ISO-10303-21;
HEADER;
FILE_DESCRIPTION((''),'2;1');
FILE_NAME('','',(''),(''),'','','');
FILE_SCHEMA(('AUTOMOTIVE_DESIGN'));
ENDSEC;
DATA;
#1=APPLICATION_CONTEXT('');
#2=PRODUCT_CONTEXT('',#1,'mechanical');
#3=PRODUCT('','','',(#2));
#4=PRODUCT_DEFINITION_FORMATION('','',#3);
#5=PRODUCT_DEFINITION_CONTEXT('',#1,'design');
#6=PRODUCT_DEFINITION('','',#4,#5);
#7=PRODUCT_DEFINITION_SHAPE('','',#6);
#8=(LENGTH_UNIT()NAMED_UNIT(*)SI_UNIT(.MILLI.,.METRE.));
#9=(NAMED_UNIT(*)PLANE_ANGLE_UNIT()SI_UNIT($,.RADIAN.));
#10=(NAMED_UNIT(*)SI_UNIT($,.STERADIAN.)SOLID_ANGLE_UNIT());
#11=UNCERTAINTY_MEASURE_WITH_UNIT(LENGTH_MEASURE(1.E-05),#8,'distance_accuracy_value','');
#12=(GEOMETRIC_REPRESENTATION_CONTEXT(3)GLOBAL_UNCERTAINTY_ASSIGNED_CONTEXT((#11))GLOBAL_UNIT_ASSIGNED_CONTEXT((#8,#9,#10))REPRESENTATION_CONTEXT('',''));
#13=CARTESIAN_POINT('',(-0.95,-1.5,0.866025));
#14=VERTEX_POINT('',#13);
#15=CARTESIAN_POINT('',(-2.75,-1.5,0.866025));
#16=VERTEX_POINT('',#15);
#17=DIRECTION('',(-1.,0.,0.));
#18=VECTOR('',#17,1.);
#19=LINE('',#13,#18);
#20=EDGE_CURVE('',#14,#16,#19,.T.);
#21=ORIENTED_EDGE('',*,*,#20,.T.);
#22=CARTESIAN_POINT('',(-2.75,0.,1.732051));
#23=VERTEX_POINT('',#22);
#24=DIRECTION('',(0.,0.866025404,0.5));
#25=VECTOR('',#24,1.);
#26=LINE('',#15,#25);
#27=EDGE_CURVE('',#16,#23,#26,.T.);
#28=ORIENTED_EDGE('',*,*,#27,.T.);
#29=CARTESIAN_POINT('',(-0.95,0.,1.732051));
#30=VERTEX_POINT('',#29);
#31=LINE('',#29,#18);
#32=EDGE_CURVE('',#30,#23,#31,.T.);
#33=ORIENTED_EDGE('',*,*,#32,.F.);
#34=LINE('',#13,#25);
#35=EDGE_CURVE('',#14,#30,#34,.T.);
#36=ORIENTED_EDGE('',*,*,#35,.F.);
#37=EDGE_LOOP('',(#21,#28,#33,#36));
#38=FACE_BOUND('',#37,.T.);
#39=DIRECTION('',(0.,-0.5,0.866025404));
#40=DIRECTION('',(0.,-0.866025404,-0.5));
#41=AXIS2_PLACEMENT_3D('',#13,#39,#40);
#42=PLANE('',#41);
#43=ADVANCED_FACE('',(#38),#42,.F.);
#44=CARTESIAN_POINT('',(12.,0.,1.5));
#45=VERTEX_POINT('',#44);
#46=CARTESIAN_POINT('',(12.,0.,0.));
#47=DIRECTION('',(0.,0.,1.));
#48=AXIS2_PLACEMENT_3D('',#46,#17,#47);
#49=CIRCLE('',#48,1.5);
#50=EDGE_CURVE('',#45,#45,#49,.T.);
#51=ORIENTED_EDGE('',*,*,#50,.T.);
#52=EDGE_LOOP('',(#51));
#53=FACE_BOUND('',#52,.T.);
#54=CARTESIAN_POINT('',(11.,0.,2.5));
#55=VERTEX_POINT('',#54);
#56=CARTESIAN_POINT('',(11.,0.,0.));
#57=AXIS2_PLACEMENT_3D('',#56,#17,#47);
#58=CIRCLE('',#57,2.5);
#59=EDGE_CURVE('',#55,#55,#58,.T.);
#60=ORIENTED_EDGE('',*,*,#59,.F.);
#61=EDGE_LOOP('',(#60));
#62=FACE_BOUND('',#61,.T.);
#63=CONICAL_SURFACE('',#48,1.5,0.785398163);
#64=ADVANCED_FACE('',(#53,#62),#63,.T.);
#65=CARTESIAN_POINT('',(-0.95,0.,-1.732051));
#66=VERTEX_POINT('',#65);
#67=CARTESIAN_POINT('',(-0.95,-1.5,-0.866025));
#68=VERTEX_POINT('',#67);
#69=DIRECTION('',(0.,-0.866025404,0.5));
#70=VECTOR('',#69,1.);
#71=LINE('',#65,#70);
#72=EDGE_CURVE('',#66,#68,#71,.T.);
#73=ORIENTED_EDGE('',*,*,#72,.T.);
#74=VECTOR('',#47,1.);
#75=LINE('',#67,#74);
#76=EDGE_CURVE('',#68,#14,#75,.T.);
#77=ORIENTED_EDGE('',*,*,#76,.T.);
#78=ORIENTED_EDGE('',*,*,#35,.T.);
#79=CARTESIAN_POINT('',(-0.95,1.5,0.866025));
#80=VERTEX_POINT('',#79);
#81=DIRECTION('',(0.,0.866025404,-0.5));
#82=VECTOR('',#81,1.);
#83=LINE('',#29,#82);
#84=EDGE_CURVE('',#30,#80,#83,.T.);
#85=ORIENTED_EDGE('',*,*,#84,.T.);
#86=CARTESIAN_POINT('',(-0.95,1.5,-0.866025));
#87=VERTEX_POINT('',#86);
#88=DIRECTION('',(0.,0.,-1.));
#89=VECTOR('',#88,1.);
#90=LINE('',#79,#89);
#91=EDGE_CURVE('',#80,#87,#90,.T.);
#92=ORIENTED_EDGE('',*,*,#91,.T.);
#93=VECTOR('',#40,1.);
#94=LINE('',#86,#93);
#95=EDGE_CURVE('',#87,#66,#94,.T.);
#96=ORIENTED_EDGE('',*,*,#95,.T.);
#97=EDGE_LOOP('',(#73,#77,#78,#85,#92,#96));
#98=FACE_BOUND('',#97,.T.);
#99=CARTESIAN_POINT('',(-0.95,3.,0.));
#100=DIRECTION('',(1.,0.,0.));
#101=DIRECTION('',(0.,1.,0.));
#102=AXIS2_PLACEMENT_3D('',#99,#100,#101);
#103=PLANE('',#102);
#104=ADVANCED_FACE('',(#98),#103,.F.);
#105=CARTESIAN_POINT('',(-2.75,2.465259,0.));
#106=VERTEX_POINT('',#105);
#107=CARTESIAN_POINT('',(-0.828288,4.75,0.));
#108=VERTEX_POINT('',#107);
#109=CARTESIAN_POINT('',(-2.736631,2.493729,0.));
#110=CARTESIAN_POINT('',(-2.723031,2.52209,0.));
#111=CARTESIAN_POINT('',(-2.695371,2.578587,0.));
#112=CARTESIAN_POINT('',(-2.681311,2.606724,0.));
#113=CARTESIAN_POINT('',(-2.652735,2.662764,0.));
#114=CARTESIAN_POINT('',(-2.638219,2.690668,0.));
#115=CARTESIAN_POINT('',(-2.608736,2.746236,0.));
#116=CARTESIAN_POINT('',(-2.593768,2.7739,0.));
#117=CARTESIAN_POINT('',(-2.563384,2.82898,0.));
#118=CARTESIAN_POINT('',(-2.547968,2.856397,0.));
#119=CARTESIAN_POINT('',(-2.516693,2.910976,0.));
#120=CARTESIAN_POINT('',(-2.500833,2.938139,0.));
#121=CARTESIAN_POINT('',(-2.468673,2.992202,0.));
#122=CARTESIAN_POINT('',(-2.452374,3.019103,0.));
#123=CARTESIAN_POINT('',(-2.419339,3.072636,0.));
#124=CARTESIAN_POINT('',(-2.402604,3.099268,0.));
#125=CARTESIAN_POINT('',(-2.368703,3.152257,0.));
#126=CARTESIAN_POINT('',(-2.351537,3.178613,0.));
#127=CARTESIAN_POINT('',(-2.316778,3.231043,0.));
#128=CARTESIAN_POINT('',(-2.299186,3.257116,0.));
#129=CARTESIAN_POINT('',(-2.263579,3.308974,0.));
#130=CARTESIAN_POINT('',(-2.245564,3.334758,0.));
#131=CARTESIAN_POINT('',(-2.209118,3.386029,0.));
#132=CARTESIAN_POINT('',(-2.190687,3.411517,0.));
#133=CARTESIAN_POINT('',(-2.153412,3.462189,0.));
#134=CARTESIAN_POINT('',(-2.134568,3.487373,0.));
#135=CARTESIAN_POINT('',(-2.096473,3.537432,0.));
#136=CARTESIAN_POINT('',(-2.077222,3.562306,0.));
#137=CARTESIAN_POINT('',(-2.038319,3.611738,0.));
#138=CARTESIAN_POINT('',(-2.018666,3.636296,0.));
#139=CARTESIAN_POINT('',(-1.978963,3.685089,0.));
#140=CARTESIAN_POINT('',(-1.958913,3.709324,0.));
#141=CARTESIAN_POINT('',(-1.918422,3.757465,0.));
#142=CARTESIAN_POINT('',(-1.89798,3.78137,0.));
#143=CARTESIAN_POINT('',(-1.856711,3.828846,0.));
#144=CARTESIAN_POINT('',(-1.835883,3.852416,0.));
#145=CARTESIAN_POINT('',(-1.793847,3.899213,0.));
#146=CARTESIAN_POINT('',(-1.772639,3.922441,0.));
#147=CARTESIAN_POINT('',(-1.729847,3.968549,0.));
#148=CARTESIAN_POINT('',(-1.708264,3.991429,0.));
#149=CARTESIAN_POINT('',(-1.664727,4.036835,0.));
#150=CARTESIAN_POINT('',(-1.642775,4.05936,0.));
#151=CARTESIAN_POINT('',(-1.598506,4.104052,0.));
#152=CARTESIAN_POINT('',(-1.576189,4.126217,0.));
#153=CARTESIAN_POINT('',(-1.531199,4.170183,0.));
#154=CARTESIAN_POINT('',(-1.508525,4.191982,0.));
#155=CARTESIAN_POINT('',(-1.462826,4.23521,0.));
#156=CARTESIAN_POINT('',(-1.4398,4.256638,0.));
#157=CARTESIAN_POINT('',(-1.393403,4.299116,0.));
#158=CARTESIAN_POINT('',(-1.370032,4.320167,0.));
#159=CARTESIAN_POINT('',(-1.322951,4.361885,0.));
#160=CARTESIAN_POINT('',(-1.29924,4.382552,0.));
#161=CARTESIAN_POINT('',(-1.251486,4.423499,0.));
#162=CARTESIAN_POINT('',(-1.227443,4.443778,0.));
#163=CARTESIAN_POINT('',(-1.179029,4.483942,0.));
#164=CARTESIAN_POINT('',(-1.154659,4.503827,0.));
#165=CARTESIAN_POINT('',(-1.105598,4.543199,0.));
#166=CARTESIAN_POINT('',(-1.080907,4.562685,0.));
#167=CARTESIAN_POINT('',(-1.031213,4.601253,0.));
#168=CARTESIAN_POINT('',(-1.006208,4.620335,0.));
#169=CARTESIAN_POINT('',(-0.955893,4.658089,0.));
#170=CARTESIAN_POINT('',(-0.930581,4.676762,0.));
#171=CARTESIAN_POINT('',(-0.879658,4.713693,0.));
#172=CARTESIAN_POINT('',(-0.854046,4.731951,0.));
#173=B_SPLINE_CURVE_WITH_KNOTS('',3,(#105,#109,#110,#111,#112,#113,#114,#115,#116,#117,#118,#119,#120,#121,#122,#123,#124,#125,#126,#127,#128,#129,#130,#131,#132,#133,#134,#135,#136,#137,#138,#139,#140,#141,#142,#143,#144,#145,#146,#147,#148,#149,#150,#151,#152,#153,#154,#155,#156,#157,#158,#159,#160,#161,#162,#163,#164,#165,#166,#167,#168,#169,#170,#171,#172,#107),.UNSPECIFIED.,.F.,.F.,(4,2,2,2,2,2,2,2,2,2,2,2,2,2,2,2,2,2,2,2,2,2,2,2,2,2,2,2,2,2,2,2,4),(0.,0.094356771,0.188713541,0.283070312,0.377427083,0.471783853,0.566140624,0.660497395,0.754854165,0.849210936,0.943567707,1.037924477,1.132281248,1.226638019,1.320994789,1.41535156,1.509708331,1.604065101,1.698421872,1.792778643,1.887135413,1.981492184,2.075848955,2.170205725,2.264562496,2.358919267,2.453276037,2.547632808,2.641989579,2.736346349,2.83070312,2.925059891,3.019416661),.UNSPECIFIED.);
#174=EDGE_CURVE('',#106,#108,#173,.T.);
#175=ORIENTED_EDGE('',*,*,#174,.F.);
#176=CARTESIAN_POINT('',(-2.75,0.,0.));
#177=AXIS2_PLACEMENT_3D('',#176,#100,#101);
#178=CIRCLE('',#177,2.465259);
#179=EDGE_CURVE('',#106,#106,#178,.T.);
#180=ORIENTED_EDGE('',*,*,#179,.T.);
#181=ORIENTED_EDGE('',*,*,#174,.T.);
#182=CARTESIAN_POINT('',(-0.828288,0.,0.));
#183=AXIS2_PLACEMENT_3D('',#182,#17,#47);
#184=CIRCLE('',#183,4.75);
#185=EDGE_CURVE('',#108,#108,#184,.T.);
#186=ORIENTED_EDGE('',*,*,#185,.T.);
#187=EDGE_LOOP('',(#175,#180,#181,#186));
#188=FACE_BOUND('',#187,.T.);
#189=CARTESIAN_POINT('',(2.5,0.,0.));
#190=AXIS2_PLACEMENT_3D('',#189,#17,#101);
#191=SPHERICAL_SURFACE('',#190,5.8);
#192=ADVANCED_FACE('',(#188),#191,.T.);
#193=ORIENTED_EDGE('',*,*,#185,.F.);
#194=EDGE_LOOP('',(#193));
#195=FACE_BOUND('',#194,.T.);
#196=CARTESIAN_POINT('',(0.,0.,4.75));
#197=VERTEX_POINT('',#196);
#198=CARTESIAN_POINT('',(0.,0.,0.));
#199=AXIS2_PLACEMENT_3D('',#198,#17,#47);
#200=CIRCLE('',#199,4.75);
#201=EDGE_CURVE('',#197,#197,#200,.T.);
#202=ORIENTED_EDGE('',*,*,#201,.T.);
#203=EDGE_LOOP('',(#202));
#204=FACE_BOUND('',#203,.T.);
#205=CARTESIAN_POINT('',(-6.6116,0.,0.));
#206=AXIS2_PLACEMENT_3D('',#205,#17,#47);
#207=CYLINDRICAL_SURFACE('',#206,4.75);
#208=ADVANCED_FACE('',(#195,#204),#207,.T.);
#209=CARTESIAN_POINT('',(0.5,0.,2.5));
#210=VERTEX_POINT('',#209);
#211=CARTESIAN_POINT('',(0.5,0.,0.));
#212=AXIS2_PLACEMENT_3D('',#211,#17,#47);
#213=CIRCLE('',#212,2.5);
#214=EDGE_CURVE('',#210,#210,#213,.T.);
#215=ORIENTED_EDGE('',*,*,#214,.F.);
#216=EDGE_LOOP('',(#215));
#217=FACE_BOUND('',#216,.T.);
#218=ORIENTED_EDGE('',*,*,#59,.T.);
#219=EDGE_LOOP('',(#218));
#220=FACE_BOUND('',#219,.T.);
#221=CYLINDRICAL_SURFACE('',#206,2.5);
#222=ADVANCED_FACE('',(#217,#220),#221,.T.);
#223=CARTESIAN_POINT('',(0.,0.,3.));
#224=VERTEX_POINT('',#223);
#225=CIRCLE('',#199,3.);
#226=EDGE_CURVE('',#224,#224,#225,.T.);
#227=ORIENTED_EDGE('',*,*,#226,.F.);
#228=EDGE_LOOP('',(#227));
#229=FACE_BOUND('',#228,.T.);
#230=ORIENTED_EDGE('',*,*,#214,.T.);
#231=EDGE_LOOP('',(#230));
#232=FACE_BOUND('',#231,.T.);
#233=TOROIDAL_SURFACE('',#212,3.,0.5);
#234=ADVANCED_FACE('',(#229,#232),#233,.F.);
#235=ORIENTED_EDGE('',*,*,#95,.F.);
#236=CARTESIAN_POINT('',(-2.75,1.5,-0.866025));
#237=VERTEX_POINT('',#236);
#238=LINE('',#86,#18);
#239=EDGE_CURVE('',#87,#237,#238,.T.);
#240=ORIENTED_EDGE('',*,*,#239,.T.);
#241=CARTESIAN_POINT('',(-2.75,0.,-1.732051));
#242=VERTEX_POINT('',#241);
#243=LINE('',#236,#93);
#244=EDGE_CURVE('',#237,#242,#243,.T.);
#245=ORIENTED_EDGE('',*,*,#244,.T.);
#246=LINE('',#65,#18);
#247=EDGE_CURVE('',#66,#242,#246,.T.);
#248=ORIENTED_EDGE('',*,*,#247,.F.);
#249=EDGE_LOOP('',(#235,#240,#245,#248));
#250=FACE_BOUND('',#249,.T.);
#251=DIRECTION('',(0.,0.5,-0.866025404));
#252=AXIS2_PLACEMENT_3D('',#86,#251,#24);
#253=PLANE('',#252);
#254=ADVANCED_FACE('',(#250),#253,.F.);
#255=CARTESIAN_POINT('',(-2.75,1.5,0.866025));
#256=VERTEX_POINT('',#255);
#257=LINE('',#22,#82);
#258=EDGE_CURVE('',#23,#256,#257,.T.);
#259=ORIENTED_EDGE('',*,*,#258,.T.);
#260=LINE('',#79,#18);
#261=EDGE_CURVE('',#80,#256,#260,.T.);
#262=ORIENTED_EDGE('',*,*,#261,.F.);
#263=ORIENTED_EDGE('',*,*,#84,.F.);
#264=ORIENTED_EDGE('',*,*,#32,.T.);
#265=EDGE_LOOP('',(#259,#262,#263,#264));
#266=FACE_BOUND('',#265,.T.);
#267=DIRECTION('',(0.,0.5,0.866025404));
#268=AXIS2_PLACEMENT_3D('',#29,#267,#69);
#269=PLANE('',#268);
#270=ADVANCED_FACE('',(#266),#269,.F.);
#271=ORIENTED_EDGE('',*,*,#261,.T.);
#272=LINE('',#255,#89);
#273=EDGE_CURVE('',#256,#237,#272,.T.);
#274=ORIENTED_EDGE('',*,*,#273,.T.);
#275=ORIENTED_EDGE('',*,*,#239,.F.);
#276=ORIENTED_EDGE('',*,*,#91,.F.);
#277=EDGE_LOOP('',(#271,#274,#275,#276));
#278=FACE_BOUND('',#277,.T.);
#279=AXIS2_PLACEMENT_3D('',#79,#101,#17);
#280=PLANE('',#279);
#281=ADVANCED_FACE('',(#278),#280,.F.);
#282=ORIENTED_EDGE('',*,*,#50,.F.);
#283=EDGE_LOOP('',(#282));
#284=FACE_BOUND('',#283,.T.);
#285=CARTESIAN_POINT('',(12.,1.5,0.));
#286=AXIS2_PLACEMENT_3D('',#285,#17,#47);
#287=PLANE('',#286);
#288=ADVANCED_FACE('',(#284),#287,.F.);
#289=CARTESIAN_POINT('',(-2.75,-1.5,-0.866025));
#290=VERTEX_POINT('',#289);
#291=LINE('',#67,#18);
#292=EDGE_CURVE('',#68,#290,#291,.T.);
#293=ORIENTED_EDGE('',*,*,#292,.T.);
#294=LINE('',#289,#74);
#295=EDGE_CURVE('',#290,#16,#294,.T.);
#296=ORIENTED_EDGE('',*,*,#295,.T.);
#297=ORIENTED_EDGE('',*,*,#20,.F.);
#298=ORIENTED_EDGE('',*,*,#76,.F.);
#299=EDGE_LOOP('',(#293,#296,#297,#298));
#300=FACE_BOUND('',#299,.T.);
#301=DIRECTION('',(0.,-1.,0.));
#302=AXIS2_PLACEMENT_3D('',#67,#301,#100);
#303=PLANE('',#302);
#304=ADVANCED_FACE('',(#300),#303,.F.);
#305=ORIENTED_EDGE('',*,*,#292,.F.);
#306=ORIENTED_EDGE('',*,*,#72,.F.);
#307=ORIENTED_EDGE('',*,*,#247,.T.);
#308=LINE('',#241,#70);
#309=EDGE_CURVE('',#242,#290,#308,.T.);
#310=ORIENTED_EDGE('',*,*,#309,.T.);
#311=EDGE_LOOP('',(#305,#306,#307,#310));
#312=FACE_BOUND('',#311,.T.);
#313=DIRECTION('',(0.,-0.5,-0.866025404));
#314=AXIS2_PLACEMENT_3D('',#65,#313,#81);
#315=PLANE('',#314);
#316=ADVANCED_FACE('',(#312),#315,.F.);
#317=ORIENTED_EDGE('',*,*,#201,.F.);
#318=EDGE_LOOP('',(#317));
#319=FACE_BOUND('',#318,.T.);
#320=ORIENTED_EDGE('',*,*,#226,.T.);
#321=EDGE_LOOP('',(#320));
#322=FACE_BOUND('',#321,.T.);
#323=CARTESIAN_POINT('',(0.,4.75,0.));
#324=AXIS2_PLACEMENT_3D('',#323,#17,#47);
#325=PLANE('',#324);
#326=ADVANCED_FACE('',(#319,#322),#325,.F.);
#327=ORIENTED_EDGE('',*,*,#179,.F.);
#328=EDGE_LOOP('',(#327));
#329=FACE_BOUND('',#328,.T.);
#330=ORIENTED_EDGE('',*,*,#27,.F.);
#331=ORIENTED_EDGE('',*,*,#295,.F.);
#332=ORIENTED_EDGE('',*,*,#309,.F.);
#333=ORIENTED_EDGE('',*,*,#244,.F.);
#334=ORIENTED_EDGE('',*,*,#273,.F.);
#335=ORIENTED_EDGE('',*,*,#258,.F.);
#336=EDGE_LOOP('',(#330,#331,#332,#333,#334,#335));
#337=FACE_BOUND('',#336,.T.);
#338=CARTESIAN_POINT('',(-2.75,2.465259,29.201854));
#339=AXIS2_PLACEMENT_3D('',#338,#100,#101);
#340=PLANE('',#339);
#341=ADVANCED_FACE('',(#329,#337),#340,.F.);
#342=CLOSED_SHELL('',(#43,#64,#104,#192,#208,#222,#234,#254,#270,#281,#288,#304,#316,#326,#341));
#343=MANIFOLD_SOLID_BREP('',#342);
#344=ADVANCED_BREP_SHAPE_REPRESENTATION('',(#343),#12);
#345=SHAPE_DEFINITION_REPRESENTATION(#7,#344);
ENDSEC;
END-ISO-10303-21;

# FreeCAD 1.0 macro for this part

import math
import FreeCAD as App
import Part
import Sketcher

V = App.Vector
Q = App.Units.Quantity


def add_polygon(sketch, points):
    """Adds a closed chain of lines whose ends are joined by coincident constraints."""
    first, n = sketch.GeometryCount, len(points)
    for a, b in zip(points, points[1:] + points[:1]):
        sketch.addGeometry(Part.LineSegment(App.Vector(*a, 0), App.Vector(*b, 0)), False)
    for i in range(n):
        sketch.addConstraint(Sketcher.Constraint("Coincident", first + i, 2, first + (i + 1) % n, 1))

doc = App.newDocument("Part")
params = doc.addObject("Spreadsheet::Sheet", "Params")
for row, (alias, value) in enumerate([
    ("sketch1_radius", "5.8 mm"),
    ("sketch1_radius2", "0.5 mm"),
    ("sketch1_width", "15.3 mm"),
    ("sketch1_width2", "10.5 mm"),
    ("sketch1_height", "1.5 mm"),
    ("revolution_angle", "360 deg"),
    ("pocket2_length", "1.8 mm"),
], start=1):
    params.set(f"A{row}", alias)
    params.set(f"B{row}", "=" + value)
    params.setAlias(f"B{row}", alias)

body = doc.addObject("PartDesign::Body", "Body")

# Sketch on XY plane
sketch1 = doc.addObject("Sketcher::SketchObject", "Sketch")
body.addObject(sketch1)
sketch1.AttachmentSupport = (doc.XY_Plane, [""])
sketch1.MapMode = "FlatFace"
sketch1.addGeometry([
    Part.LineSegment(V(0, 3, 0), V(0, 4.75, 0)),  # 0
    Part.LineSegment(V(0, 4.75, 0), V(-0.83, 4.75, 0)),  # 1
    Part.ArcOfCircle(Part.Circle(V(2.5, 0, 0), V(0, 0, 1), 5.8), math.radians(125), math.radians(180)),  # 2
    Part.LineSegment(V(-3.3, 0, 0), V(12, 0, 0)),  # 3
    Part.LineSegment(V(12, 0, 0), V(12, 1.5, 0)),  # 4
    Part.LineSegment(V(12, 1.5, 0), V(11, 2.5, 0)),  # 5
    Part.LineSegment(V(11, 2.5, 0), V(0.5, 2.5, 0)),  # 6
    Part.ArcOfCircle(Part.Circle(V(0.5, 3, 0), V(0, 0, 1), 0.5), math.radians(180), math.radians(270)),  # 7
], False)
sketch1.addConstraint([
    Sketcher.Constraint("Coincident", 0, 2, 1, 1),
    Sketcher.Constraint("Coincident", 1, 2, 2, 1),
    Sketcher.Constraint("Coincident", 2, 2, 3, 1),
    Sketcher.Constraint("Coincident", 3, 2, 4, 1),
    Sketcher.Constraint("Coincident", 4, 2, 5, 1),
    Sketcher.Constraint("Coincident", 5, 2, 6, 1),
    Sketcher.Constraint("Tangent", 6, 2, 7, 2),
    Sketcher.Constraint("Tangent", 7, 1, 0, 1),
    Sketcher.Constraint("Vertical", 0),
    Sketcher.Constraint("Horizontal", 1),
    Sketcher.Constraint("Horizontal", 3),
    Sketcher.Constraint("Vertical", 4),
    Sketcher.Constraint("Horizontal", 6),
    Sketcher.Constraint("PointOnObject", 2, 3, -1),
    Sketcher.Constraint("PointOnObject", 0, 2, -2),
    Sketcher.Constraint("PointOnObject", 2, 2, -1),
    Sketcher.Constraint("Radius", 2, 5.8),
    Sketcher.Constraint("Radius", 7, 0.5),
    Sketcher.Constraint("Angle", 5, Q("135 deg")),
    Sketcher.Constraint("DistanceX", 3, 1, 3, 2, 15.3),
    Sketcher.Constraint("DistanceX", 6, 2, 6, 1, 10.5),
    Sketcher.Constraint("DistanceY", 4, 1, 4, 2, 1.5),
    Sketcher.Constraint("DistanceY", -1, 1, 7, 3, 3.0),
    Sketcher.Constraint("DistanceY", 0, 1, 0, 2, 1.75),
])
sketch1.setExpression("Constraints[16]", "Params.sketch1_radius")
sketch1.setExpression("Constraints[17]", "Params.sketch1_radius2")
sketch1.setExpression("Constraints[19]", "Params.sketch1_width")
sketch1.setExpression("Constraints[20]", "Params.sketch1_width2")
sketch1.setExpression("Constraints[21]", "Params.sketch1_height")
revolution = doc.addObject("PartDesign::Revolution", "Revolution")
body.addObject(revolution)
revolution.Profile = sketch1
revolution.ReferenceAxis = (sketch1, ["H_Axis"])
revolution.setExpression("Angle", "Params.revolution_angle")

# Sketch on XY plane
sketch2 = doc.addObject("Sketcher::SketchObject", "Sketch001")
body.addObject(sketch2)
sketch2.AttachmentSupport = (doc.XY_Plane, [""])
sketch2.MapMode = "FlatFace"
add_polygon(sketch2, [(-3, -45), (-3, 45), (-88, 45), (-88, -45)])  # lines 0-3
sketch2.addConstraint([
    Sketcher.Constraint("Vertical", 0),
    Sketcher.Constraint("Horizontal", 1),
    Sketcher.Constraint("Vertical", 2),
    Sketcher.Constraint("Horizontal", 3),
    Sketcher.Constraint("DistanceX", 0, 2, -1, 1, 2.75),
    Sketcher.Constraint("DistanceX", 1, 2, 1, 1, 85.680738),
    Sketcher.Constraint("DistanceY", 0, 1, 0, 2, 90.611255),
    Sketcher.Constraint("DistanceY", -1, 1, 0, 2, 45.305627),
])
pocket1 = doc.addObject("PartDesign::Pocket", "Pocket")
body.addObject(pocket1)
pocket1.Profile = sketch2
pocket1.Type = "ThroughAll"
pocket1.Midplane = True

# Sketch on YZ plane
sketch3 = doc.addObject("Sketcher::SketchObject", "Sketch002")
body.addObject(sketch3)
sketch3.AttachmentSupport = (doc.YZ_Plane, [""])
sketch3.MapMode = "FlatFace"
sketch3.AttachmentOffset = App.Placement(V(0, 0, -2.75), App.Rotation())
add_polygon(sketch3, [(0, -1.7), (-1.5, -0.9), (-1.5, 0.9), (0, 1.7), (1.5, 0.9), (1.5, -0.9)])  # lines 0-5
sketch3.addConstraint([
    Sketcher.Constraint("Vertical", 1),
    Sketcher.Constraint("Vertical", 4),
    Sketcher.Constraint("Symmetric", 0, 2, 3, 2, -1, 1),
    Sketcher.Constraint("Symmetric", 2, 2, 5, 2, -1, 1),
    Sketcher.Constraint("PointOnObject", 2, 2, -2),
    Sketcher.Constraint("Parallel", 2, 5),
    Sketcher.Constraint("Horizontal", 1, 2, 3, 2),
    Sketcher.Constraint("Angle", 0, Q("150 deg")),
    Sketcher.Constraint("DistanceX", 1, 2, 3, 2, 3.0),
    Sketcher.Constraint("DistanceY", 1, 1, 1, 2, 1.732051),
])
pocket2 = doc.addObject("PartDesign::Pocket", "Pocket001")
body.addObject(pocket2)
pocket2.Profile = sketch3
pocket2.setExpression("Length", "Params.pocket2_length")
pocket2.Reversed = True

doc.recompute()
